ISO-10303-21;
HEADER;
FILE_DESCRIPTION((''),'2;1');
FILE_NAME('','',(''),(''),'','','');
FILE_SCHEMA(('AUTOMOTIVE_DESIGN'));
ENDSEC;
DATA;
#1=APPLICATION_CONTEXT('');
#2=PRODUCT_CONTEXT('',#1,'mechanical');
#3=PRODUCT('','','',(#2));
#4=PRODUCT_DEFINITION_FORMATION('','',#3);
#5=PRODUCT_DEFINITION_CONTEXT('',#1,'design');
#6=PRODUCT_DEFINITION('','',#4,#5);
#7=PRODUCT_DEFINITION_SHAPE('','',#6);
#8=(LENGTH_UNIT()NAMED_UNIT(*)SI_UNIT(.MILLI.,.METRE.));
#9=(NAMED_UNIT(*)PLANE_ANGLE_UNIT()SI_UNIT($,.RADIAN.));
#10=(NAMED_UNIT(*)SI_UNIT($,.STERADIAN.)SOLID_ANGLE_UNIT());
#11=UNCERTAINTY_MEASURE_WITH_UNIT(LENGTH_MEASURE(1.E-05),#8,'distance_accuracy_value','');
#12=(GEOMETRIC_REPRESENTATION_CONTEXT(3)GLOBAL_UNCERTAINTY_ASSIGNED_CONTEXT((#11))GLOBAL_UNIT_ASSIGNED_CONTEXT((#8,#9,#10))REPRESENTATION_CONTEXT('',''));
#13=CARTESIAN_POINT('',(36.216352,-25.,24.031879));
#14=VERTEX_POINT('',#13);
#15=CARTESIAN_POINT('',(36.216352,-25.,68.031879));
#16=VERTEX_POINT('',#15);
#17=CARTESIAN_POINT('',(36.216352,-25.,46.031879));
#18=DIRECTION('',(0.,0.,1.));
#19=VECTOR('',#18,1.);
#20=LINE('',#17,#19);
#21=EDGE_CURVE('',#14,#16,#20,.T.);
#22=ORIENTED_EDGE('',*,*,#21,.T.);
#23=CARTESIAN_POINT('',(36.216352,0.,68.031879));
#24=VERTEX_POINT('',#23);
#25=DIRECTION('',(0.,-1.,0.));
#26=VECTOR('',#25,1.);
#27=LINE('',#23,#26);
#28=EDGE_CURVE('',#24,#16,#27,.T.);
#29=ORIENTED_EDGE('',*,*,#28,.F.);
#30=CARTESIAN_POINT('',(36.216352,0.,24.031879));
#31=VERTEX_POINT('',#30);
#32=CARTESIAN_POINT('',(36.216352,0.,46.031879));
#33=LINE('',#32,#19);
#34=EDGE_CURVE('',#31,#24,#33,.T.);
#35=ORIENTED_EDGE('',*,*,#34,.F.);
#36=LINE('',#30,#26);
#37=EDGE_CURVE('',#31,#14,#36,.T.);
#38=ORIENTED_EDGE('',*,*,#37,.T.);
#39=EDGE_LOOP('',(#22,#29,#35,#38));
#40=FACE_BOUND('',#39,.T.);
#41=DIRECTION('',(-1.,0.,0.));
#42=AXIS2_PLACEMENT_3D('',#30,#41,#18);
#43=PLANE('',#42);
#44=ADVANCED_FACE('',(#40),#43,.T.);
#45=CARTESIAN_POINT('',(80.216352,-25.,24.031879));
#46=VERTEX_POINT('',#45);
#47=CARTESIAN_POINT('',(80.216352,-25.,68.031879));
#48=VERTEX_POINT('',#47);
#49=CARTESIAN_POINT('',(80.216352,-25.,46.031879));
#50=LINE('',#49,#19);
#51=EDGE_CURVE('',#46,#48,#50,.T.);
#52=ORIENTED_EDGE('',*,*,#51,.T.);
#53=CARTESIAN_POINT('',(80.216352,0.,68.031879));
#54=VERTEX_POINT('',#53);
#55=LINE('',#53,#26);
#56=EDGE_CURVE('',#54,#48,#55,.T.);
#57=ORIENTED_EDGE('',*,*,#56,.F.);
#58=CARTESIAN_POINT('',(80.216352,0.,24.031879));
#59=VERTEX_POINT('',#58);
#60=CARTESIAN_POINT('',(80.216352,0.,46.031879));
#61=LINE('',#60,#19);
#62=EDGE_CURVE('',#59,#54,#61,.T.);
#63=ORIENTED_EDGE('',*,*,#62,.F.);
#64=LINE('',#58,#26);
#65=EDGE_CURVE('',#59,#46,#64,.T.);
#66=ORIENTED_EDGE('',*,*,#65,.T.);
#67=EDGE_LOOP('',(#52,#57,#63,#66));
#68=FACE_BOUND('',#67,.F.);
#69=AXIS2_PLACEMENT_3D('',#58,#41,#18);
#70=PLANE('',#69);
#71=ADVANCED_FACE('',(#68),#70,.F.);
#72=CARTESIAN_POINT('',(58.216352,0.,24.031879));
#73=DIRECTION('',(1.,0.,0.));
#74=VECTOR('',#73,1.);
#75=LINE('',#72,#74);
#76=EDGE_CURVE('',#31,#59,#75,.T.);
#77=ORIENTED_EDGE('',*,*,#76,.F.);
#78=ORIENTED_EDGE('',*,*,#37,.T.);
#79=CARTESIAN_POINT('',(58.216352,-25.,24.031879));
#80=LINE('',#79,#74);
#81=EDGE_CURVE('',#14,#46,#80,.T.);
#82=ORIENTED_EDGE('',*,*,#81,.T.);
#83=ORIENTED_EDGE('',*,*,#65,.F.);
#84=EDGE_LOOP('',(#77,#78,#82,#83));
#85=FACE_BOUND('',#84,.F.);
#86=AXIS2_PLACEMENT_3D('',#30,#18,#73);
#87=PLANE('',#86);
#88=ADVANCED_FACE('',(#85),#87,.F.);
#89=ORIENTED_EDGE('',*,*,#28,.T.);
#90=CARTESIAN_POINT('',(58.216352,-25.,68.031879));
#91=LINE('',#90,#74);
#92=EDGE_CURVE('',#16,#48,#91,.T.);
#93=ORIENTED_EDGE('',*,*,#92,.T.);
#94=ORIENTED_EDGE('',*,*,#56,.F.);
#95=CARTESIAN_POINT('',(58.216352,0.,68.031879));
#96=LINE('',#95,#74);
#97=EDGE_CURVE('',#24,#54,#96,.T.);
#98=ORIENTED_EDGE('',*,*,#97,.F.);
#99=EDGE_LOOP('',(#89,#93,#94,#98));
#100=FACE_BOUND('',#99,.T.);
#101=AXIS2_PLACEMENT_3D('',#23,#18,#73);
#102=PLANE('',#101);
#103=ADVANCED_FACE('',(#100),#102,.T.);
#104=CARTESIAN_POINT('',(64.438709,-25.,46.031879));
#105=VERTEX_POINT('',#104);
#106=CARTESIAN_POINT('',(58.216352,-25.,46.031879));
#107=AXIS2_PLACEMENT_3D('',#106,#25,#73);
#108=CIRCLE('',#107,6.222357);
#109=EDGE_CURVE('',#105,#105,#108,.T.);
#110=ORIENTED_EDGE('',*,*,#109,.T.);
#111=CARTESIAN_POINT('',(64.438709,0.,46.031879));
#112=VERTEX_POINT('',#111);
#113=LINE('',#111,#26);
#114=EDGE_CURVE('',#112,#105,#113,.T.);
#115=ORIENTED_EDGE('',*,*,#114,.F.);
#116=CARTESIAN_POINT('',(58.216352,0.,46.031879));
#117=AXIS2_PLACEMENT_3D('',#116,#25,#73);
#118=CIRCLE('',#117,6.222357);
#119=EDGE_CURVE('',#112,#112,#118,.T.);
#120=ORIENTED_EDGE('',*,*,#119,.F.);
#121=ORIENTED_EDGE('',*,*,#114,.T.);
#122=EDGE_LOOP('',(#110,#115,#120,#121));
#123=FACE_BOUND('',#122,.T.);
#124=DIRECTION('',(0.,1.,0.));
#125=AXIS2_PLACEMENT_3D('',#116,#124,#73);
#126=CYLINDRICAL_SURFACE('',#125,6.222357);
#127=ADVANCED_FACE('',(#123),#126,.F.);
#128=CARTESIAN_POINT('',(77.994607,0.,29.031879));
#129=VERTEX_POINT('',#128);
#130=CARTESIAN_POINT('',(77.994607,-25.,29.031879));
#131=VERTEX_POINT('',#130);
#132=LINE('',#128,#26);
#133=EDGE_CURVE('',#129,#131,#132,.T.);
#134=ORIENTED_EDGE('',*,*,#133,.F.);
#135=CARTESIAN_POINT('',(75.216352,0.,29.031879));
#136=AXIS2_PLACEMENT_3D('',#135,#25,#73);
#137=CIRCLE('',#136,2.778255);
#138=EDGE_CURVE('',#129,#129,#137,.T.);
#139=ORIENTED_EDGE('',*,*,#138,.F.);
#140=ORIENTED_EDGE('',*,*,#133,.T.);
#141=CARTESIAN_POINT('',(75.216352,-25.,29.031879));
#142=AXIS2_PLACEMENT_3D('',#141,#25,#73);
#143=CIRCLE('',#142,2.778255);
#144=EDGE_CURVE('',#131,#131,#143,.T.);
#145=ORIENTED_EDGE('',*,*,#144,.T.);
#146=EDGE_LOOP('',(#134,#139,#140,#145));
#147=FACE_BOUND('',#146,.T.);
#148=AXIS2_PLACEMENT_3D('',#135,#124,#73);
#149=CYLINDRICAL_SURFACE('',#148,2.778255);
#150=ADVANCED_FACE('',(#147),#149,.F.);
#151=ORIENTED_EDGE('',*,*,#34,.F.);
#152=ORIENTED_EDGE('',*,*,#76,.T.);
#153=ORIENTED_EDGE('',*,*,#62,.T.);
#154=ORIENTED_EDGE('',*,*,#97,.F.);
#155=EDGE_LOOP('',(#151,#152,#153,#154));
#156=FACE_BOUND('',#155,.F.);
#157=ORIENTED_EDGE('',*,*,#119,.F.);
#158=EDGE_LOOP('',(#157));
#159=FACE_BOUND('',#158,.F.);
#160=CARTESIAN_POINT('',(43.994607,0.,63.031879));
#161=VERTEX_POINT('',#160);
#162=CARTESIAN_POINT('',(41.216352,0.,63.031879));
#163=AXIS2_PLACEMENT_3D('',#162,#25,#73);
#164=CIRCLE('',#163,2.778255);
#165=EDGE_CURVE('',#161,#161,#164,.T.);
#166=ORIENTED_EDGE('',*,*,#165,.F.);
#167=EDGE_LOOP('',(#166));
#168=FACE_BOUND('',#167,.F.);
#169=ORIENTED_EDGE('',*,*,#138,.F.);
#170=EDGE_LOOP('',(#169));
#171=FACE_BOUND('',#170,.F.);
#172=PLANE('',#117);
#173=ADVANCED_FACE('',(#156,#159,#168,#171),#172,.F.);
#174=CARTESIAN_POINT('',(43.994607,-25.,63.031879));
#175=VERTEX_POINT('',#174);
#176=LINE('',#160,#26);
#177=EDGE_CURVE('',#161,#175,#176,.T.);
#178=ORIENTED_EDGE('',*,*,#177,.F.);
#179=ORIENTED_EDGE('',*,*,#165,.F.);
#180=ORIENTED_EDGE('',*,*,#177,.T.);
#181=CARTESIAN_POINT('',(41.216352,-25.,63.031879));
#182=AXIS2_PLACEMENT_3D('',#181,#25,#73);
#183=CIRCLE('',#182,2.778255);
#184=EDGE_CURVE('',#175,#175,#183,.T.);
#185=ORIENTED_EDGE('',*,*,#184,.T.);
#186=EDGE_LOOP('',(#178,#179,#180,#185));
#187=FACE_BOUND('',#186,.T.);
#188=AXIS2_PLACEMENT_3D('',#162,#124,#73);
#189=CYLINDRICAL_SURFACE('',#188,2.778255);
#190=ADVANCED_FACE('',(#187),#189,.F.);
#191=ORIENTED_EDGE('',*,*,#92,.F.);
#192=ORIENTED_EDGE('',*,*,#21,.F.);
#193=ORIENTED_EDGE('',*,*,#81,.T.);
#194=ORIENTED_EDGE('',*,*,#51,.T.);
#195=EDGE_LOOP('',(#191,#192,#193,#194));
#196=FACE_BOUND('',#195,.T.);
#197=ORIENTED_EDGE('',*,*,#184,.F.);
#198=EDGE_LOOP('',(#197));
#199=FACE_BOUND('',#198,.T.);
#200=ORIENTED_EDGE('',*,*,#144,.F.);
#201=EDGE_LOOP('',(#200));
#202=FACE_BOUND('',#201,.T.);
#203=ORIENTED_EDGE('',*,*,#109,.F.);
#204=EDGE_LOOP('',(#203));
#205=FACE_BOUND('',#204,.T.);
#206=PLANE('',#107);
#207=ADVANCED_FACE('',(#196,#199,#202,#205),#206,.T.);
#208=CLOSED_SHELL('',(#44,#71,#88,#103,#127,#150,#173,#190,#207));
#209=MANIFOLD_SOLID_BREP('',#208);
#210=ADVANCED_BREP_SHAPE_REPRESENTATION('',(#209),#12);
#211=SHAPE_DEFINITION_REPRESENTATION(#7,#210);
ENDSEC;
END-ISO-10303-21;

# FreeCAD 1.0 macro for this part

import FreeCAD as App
import Part
import Sketcher

doc = App.newDocument("Part")
body = doc.addObject("PartDesign::Body", "Body")

# Sketch on XZ plane
sketch1 = body.newObject("Sketcher::SketchObject", "Sketch")
sketch1.AttachmentSupport = (doc.getObject("XZ_Plane"), [""])
sketch1.MapMode = "FlatFace"
sketch1.addGeometry(Part.LineSegment(App.Vector(36.2, 68, 0), App.Vector(36.2, 24, 0)), False)
sketch1.addGeometry(Part.LineSegment(App.Vector(36.2, 24, 0), App.Vector(80.2, 24, 0)), False)
sketch1.addGeometry(Part.LineSegment(App.Vector(80.2, 24, 0), App.Vector(80.2, 68, 0)), False)
sketch1.addGeometry(Part.LineSegment(App.Vector(80.2, 68, 0), App.Vector(36.2, 68, 0)), False)
sketch1.addGeometry(Part.Circle(App.Vector(75.2, 29, 0), App.Vector(0, 0, 1), 2.8), False)
sketch1.addGeometry(Part.Circle(App.Vector(58.2, 46, 0), App.Vector(0, 0, 1), 6.2), False)
sketch1.addGeometry(Part.Circle(App.Vector(41.2, 63, 0), App.Vector(0, 0, 1), 2.8), False)
sketch1.addConstraint(Sketcher.Constraint("Coincident", 0, 2, 1, 1))
sketch1.addConstraint(Sketcher.Constraint("Coincident", 1, 2, 2, 1))
sketch1.addConstraint(Sketcher.Constraint("Coincident", 2, 2, 3, 1))
sketch1.addConstraint(Sketcher.Constraint("Coincident", 3, 2, 0, 1))
sketch1.addConstraint(Sketcher.Constraint("Vertical", 0))
sketch1.addConstraint(Sketcher.Constraint("Horizontal", 1))
sketch1.addConstraint(Sketcher.Constraint("Vertical", 2))
sketch1.addConstraint(Sketcher.Constraint("Horizontal", 3))
sketch1.addConstraint(Sketcher.Constraint("Equal", 4, 6))
sketch1.addConstraint(Sketcher.Constraint("Equal", 3, 0))
sketch1.addConstraint(Sketcher.Constraint("DistanceX", 1, 1, 1, 2, 44.0))
sketch1.addConstraint(Sketcher.Constraint("DistanceX", 5, 3, 4, 3, 17.0))
sketch1.addConstraint(Sketcher.Constraint("DistanceY", 4, 3, 5, 3, 17.0))
sketch1.addConstraint(Sketcher.Constraint("DistanceX", 6, 3, 5, 3, 17.0))
sketch1.addConstraint(Sketcher.Constraint("DistanceY", 5, 3, 6, 3, 17.0))
sketch1.addConstraint(Sketcher.Constraint("DistanceX", 0, 2, 5, 3, 22.0))
sketch1.addConstraint(Sketcher.Constraint("DistanceY", 0, 2, 5, 3, 22.0))
sketch1.addConstraint(Sketcher.Constraint("Diameter", 4, 5.55651))
sketch1.addConstraint(Sketcher.Constraint("Diameter", 5, 12.444714))
sketch1.addConstraint(Sketcher.Constraint("DistanceX", -1, 1, 4, 3, 75.216352))
sketch1.addConstraint(Sketcher.Constraint("DistanceY", -1, 1, 4, 3, 29.031879))
pad1 = body.newObject("PartDesign::Pad", "Pad")
pad1.Profile = sketch1
pad1.Length = 25

doc.recompute()
